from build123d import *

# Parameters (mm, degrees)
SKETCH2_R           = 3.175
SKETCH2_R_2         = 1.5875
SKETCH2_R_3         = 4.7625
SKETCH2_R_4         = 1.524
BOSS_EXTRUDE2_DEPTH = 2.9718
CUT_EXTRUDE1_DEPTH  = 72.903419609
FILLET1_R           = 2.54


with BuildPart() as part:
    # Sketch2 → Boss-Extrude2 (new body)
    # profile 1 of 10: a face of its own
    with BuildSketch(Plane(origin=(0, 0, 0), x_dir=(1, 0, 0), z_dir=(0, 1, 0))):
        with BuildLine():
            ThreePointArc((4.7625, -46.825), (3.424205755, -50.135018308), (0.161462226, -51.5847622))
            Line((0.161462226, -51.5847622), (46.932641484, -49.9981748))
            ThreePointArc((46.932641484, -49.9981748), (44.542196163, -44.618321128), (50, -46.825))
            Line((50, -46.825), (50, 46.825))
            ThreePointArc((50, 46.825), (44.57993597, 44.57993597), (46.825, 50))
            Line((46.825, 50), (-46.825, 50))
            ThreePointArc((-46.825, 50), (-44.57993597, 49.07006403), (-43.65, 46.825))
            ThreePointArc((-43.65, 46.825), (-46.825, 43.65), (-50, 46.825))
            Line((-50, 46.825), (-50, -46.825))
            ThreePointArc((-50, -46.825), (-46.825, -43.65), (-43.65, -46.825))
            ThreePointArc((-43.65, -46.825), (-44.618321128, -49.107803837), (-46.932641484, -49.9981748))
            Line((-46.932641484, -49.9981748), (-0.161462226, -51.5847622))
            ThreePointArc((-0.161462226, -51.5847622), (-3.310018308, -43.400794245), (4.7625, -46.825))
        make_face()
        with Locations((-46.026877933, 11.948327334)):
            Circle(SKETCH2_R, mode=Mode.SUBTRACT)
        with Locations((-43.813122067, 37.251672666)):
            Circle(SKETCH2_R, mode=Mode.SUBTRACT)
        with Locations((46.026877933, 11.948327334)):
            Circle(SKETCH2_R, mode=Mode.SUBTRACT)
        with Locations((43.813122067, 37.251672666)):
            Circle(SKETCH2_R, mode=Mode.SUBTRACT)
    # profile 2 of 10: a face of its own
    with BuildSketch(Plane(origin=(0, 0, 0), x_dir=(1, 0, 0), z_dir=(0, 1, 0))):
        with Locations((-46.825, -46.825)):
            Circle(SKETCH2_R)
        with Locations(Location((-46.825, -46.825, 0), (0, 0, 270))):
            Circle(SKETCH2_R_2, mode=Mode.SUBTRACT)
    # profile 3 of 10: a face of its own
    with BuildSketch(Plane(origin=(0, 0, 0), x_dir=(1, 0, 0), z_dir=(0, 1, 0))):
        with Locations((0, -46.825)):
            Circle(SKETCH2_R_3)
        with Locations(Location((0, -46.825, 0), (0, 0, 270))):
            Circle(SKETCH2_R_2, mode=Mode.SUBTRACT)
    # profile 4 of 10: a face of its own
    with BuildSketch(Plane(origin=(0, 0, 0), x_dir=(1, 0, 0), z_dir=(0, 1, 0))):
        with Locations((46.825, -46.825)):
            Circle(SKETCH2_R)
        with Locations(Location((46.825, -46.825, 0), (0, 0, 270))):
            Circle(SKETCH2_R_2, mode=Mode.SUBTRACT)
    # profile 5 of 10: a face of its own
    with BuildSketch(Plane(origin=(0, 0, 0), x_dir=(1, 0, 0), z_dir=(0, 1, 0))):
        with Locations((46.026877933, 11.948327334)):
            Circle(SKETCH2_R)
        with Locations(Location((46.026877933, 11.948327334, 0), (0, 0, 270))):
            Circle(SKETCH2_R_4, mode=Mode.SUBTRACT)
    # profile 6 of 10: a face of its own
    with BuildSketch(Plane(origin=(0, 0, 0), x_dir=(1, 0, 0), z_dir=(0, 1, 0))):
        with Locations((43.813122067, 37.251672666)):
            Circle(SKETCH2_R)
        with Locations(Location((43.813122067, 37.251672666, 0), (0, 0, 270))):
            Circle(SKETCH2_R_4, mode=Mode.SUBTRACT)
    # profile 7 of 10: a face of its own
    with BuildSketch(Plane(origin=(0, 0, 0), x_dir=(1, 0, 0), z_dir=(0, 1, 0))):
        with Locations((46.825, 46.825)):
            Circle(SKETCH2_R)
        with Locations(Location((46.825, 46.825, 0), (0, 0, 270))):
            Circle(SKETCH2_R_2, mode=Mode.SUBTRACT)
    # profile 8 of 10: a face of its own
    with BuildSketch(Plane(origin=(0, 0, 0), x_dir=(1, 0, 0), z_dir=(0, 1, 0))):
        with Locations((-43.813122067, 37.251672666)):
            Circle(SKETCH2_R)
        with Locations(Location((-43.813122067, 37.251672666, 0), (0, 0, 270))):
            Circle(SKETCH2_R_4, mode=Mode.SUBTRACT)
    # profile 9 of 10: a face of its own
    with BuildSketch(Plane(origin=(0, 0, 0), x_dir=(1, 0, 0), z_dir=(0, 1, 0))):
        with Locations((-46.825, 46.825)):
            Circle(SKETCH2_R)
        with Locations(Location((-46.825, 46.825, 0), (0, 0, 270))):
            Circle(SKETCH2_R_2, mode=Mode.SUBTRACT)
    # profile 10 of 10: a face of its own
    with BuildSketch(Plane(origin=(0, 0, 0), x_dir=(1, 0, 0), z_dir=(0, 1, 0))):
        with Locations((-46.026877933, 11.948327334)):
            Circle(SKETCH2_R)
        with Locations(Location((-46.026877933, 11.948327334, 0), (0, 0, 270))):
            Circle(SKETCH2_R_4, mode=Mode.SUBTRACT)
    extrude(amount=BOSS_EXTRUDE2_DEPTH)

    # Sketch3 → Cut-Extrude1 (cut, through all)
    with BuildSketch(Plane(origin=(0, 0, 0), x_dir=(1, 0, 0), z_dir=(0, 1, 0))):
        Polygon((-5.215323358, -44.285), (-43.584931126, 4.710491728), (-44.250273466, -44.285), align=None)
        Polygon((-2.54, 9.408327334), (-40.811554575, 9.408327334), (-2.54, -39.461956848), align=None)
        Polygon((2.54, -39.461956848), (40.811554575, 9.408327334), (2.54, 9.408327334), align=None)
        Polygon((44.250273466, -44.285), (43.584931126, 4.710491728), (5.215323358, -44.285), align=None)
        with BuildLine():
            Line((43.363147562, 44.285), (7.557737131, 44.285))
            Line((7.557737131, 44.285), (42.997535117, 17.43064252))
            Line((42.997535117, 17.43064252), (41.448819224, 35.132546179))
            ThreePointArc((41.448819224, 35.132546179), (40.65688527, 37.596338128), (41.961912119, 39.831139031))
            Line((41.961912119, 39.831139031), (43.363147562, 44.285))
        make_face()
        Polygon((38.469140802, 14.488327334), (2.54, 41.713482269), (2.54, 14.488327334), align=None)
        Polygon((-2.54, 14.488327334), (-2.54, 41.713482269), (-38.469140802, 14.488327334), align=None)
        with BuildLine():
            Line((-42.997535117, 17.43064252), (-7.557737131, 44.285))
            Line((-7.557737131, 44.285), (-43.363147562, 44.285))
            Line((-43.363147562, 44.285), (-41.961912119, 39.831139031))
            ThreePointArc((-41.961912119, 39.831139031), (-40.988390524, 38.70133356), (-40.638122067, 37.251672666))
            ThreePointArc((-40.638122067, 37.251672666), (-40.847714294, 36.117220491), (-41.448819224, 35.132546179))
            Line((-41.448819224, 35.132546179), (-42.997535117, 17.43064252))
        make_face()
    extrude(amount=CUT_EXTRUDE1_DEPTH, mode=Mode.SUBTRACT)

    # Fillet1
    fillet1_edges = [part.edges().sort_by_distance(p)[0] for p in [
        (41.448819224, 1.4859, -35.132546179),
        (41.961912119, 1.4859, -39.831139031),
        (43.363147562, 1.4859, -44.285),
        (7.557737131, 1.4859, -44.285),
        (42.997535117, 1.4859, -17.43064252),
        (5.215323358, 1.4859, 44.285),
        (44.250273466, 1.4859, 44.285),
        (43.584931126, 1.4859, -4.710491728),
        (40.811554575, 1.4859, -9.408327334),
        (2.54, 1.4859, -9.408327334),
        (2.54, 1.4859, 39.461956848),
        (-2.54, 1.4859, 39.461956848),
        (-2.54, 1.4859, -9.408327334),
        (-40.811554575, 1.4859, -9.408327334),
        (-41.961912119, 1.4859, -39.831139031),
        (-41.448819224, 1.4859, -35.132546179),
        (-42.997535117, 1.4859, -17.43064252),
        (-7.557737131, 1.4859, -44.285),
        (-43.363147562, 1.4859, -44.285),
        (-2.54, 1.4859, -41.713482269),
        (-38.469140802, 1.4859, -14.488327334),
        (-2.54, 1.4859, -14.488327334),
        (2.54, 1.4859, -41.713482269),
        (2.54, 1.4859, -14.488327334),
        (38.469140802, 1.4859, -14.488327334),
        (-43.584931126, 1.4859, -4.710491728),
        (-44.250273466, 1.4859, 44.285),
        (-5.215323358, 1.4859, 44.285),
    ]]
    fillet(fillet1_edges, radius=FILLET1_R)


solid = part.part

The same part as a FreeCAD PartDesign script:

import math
import FreeCAD as App
import Part
import Sketcher
from FreeCAD import Vector
Q = App.Units.Quantity


def edges_at(feature, points):
    """Names of the edges that pass closest to the given points."""
    edges = feature.Shape.Edges
    near = lambda p: min(range(len(edges)), key=lambda i: edges[i].distToShape(Part.Vertex(*p))[0])
    return sorted({f"Edge{near(p) + 1}" for p in points})

doc = App.newDocument("Part")
params = doc.addObject("Spreadsheet::Sheet", "Params")
for row, (alias, value) in enumerate([
    ("sketch1_diameter", "0.12 in"),
    ("sketch1_diameter2", "0.125 in"),
    ("sketch1_radius", "0.125 in"),
    ("sketch1_radius2", "0.1875 in"),
    ("pad1_length", "0.117 in"),
    ("sketch2_radius", "0.125 in"),
    ("fillet_radius", "0.1 in"),
], start=1):
    params.set(f"A{row}", alias)
    params.set(f"B{row}", "=" + value)
    params.setAlias(f"B{row}", alias)

body = doc.addObject("PartDesign::Body", "Body")

# Sketch on XZ plane
sketch1 = body.newObject("Sketcher::SketchObject", "Sketch")
sketch1.AttachmentSupport = (doc.getObject("XZ_Plane"), [""])
sketch1.MapMode = "FlatFace"
sketch1.addGeometry(Part.LineSegment(Vector(0.16, 51.58, 0), Vector(46.93, 50, 0)), False)
sketch1.addGeometry(Part.ArcOfCircle(Part.Circle(Vector(46.83, 46.83, 0), Vector(0, 0, 1), 3.17), math.radians(0), math.radians(88)), False)
sketch1.addGeometry(Part.LineSegment(Vector(50, 46.83, 0), Vector(50, -46.83, 0)), False)
sketch1.addGeometry(Part.ArcOfCircle(Part.Circle(Vector(46.83, -46.83, 0), Vector(0, 0, 1), 3.17), math.radians(-90), math.radians(0)), False)
sketch1.addGeometry(Part.LineSegment(Vector(46.83, -50, 0), Vector(-46.83, -50, 0)), False)
sketch1.addGeometry(Part.ArcOfCircle(Part.Circle(Vector(-46.83, -46.83, 0), Vector(0, 0, 1), 3.17), math.radians(180), math.radians(270)), False)
sketch1.addGeometry(Part.LineSegment(Vector(-50, -46.83, 0), Vector(-50, 46.83, 0)), False)
sketch1.addGeometry(Part.ArcOfCircle(Part.Circle(Vector(-46.83, 46.83, 0), Vector(0, 0, 1), 3.17), math.radians(92), math.radians(180)), False)
sketch1.addGeometry(Part.LineSegment(Vector(-46.93, 50, 0), Vector(-0.16, 51.58, 0)), False)
sketch1.addGeometry(Part.ArcOfCircle(Part.Circle(Vector(0, 46.83, 0), Vector(0, 0, 1), 4.76), math.radians(88.06), math.radians(91.94)), False)
sketch1.addGeometry(Part.Circle(Vector(0, 46.83, 0), Vector(0, 0, 1), 1.59), False)
sketch1.addGeometry(Part.Circle(Vector(46.83, 46.83, 0), Vector(0, 0, 1), 1.59), False)
sketch1.addGeometry(Part.Circle(Vector(-46.83, 46.83, 0), Vector(0, 0, 1), 1.59), False)
sketch1.addGeometry(Part.Circle(Vector(46.83, -46.83, 0), Vector(0, 0, 1), 1.59), False)
sketch1.addGeometry(Part.Circle(Vector(-46.83, -46.83, 0), Vector(0, 0, 1), 1.59), False)
sketch1.addGeometry(Part.Circle(Vector(-46.03, -11.95, 0), Vector(0, 0, 1), 1.52), False)
sketch1.addGeometry(Part.Circle(Vector(46.03, -11.95, 0), Vector(0, 0, 1), 1.52), False)
sketch1.addGeometry(Part.Circle(Vector(-43.81, -37.25, 0), Vector(0, 0, 1), 1.52), False)
sketch1.addGeometry(Part.Circle(Vector(43.81, -37.25, 0), Vector(0, 0, 1), 1.52), False)
sketch1.addConstraint(Sketcher.Constraint("Tangent", 0, 2, 1, 2))
sketch1.addConstraint(Sketcher.Constraint("Tangent", 1, 1, 2, 1))
sketch1.addConstraint(Sketcher.Constraint("Tangent", 2, 2, 3, 2))
sketch1.addConstraint(Sketcher.Constraint("Tangent", 3, 1, 4, 1))
sketch1.addConstraint(Sketcher.Constraint("Tangent", 4, 2, 5, 2))
sketch1.addConstraint(Sketcher.Constraint("Tangent", 5, 1, 6, 1))
sketch1.addConstraint(Sketcher.Constraint("Tangent", 6, 2, 7, 2))
sketch1.addConstraint(Sketcher.Constraint("Tangent", 7, 1, 8, 1))
sketch1.addConstraint(Sketcher.Constraint("Tangent", 8, 2, 9, 2))
sketch1.addConstraint(Sketcher.Constraint("Tangent", 9, 1, 0, 1))
sketch1.addConstraint(Sketcher.Constraint("Vertical", 2))
sketch1.addConstraint(Sketcher.Constraint("Horizontal", 4))
sketch1.addConstraint(Sketcher.Constraint("Vertical", 6))
sketch1.addConstraint(Sketcher.Constraint("Coincident", 10, 3, 9, 3))
sketch1.addConstraint(Sketcher.Constraint("Coincident", 11, 3, 1, 3))
sketch1.addConstraint(Sketcher.Constraint("Coincident", 12, 3, 7, 3))
sketch1.addConstraint(Sketcher.Constraint("Coincident", 13, 3, 3, 3))
sketch1.addConstraint(Sketcher.Constraint("Coincident", 14, 3, 5, 3))
sketch1.addConstraint(Sketcher.Constraint("Equal", 1, 3))
sketch1.addConstraint(Sketcher.Constraint("Equal", 3, 5))
sketch1.addConstraint(Sketcher.Constraint("Equal", 5, 7))
sketch1.addConstraint(Sketcher.Constraint("Equal", 10, 11))
sketch1.addConstraint(Sketcher.Constraint("Equal", 11, 12))
sketch1.addConstraint(Sketcher.Constraint("Equal", 12, 13))
sketch1.addConstraint(Sketcher.Constraint("Equal", 13, 14))
sketch1.addConstraint(Sketcher.Constraint("Equal", 15, 16))
sketch1.addConstraint(Sketcher.Constraint("Equal", 16, 17))
sketch1.addConstraint(Sketcher.Constraint("Equal", 17, 18))
sketch1.addConstraint(Sketcher.Constraint("Symmetric", 1, 3, 5, 3, -1, 1))
sketch1.addConstraint(Sketcher.Constraint("Symmetric", 15, 3, 16, 3, -2))
sketch1.addConstraint(Sketcher.Constraint("Symmetric", 17, 3, 18, 3, -2))
sketch1.addConstraint(Sketcher.Constraint("Symmetric", 0, 2, 7, 1, -2))
sketch1.addConstraint(Sketcher.Constraint("Horizontal", 7, 3, 9, 3))
sketch1.addConstraint(Sketcher.Constraint("Equal", 4, 2))
sketch1.addConstraint(Sketcher.Constraint("Diameter", 15, Q("0.12 in")))
sketch1.addConstraint(Sketcher.Constraint("Diameter", 10, Q("0.125 in")))
sketch1.addConstraint(Sketcher.Constraint("Radius", 1, Q("0.125 in")))
sketch1.addConstraint(Sketcher.Constraint("Radius", 9, Q("0.1875 in")))
sketch1.addConstraint(Sketcher.Constraint("DistanceX", 4, 2, 4, 1, 93.65))
sketch1.addConstraint(Sketcher.Constraint("DistanceX", 15, 3, -1, 1, 46.026878))
sketch1.addConstraint(Sketcher.Constraint("DistanceY", 15, 3, -1, 1, 11.948327))
sketch1.addConstraint(Sketcher.Constraint("DistanceX", 17, 3, -1, 1, 43.813122))
sketch1.addConstraint(Sketcher.Constraint("DistanceY", 17, 3, -1, 1, 37.251673))
sketch1.setExpression("Constraints[34]", "Params.sketch1_diameter")
sketch1.setExpression("Constraints[35]", "Params.sketch1_diameter2")
sketch1.setExpression("Constraints[36]", "Params.sketch1_radius")
sketch1.setExpression("Constraints[37]", "Params.sketch1_radius2")
pad1 = body.newObject("PartDesign::Pad", "Pad")
pad1.Profile = sketch1
pad1.setExpression("Length", "Params.pad1_length")
pad1.Reversed = True

# Sketch on XZ plane
sketch2 = body.newObject("Sketcher::SketchObject", "Sketch001")
sketch2.AttachmentSupport = (doc.getObject("XZ_Plane"), [""])
sketch2.MapMode = "FlatFace"
sketch2.addGeometry(Part.LineSegment(Vector(-5.2, 44.3, 0), Vector(-43.6, -4.7, 0)), False)
sketch2.addGeometry(Part.LineSegment(Vector(-43.6, -4.7, 0), Vector(-44.3, 44.3, 0)), False)
sketch2.addGeometry(Part.LineSegment(Vector(-44.3, 44.3, 0), Vector(-5.2, 44.3, 0)), False)
sketch2.addGeometry(Part.LineSegment(Vector(-2.5, -9.4, 0), Vector(-40.8, -9.4, 0)), False)
sketch2.addGeometry(Part.LineSegment(Vector(-40.8, -9.4, 0), Vector(-2.5, 39.5, 0)), False)
sketch2.addGeometry(Part.LineSegment(Vector(-2.5, 39.5, 0), Vector(-2.5, -9.4, 0)), False)
sketch2.addGeometry(Part.LineSegment(Vector(2.5, 39.5, 0), Vector(40.8, -9.4, 0)), False)
sketch2.addGeometry(Part.LineSegment(Vector(40.8, -9.4, 0), Vector(2.5, -9.4, 0)), False)
sketch2.addGeometry(Part.LineSegment(Vector(2.5, -9.4, 0), Vector(2.5, 39.5, 0)), False)
sketch2.addGeometry(Part.LineSegment(Vector(44.3, 44.3, 0), Vector(43.6, -4.7, 0)), False)
sketch2.addGeometry(Part.LineSegment(Vector(43.6, -4.7, 0), Vector(5.2, 44.3, 0)), False)
sketch2.addGeometry(Part.LineSegment(Vector(5.2, 44.3, 0), Vector(44.3, 44.3, 0)), False)
sketch2.addGeometry(Part.LineSegment(Vector(43.4, -44.3, 0), Vector(7.6, -44.3, 0)), False)
sketch2.addGeometry(Part.LineSegment(Vector(7.6, -44.3, 0), Vector(43, -17.4, 0)), False)
sketch2.addGeometry(Part.LineSegment(Vector(43, -17.4, 0), Vector(41.4, -35.1, 0)), False)
sketch2.addGeometry(Part.ArcOfCircle(Part.Circle(Vector(43.8, -37.3, 0), Vector(0, 0, 1), 3.2), math.radians(138), math.radians(234)), False)
sketch2.addGeometry(Part.LineSegment(Vector(42, -39.8, 0), Vector(43.4, -44.3, 0)), False)
sketch2.addGeometry(Part.LineSegment(Vector(38.5, -14.5, 0), Vector(2.5, -41.7, 0)), False)
sketch2.addGeometry(Part.LineSegment(Vector(2.5, -41.7, 0), Vector(2.5, -14.5, 0)), False)
sketch2.addGeometry(Part.LineSegment(Vector(2.5, -14.5, 0), Vector(38.5, -14.5, 0)), False)
sketch2.addGeometry(Part.LineSegment(Vector(-2.5, -14.5, 0), Vector(-2.5, -41.7, 0)), False)
sketch2.addGeometry(Part.LineSegment(Vector(-2.5, -41.7, 0), Vector(-38.5, -14.5, 0)), False)
sketch2.addGeometry(Part.LineSegment(Vector(-38.5, -14.5, 0), Vector(-2.5, -14.5, 0)), False)
sketch2.addGeometry(Part.LineSegment(Vector(-43, -17.4, 0), Vector(-7.6, -44.3, 0)), False)
sketch2.addGeometry(Part.LineSegment(Vector(-7.6, -44.3, 0), Vector(-43.4, -44.3, 0)), False)
sketch2.addGeometry(Part.LineSegment(Vector(-43.4, -44.3, 0), Vector(-42, -39.8, 0)), False)
sketch2.addGeometry(Part.ArcOfCircle(Part.Circle(Vector(-43.8, -37.3, 0), Vector(0, 0, 1), 3.2), math.radians(-54), math.radians(0)), False)
sketch2.addGeometry(Part.ArcOfCircle(Part.Circle(Vector(-43.8, -37.3, 0), Vector(0, 0, 1), 3.2), math.radians(0), math.radians(42)), False)
sketch2.addGeometry(Part.LineSegment(Vector(-41.4, -35.1, 0), Vector(-43, -17.4, 0)), False)
sketch2.addConstraint(Sketcher.Constraint("Coincident", 0, 2, 1, 1))
sketch2.addConstraint(Sketcher.Constraint("Coincident", 1, 2, 2, 1))
sketch2.addConstraint(Sketcher.Constraint("Coincident", 2, 2, 0, 1))
sketch2.addConstraint(Sketcher.Constraint("Coincident", 3, 2, 4, 1))
sketch2.addConstraint(Sketcher.Constraint("Coincident", 4, 2, 5, 1))
sketch2.addConstraint(Sketcher.Constraint("Coincident", 5, 2, 3, 1))
sketch2.addConstraint(Sketcher.Constraint("Coincident", 6, 2, 7, 1))
sketch2.addConstraint(Sketcher.Constraint("Coincident", 7, 2, 8, 1))
sketch2.addConstraint(Sketcher.Constraint("Coincident", 8, 2, 6, 1))
sketch2.addConstraint(Sketcher.Constraint("Coincident", 9, 2, 10, 1))
sketch2.addConstraint(Sketcher.Constraint("Coincident", 10, 2, 11, 1))
sketch2.addConstraint(Sketcher.Constraint("Coincident", 11, 2, 9, 1))
sketch2.addConstraint(Sketcher.Constraint("Coincident", 12, 2, 13, 1))
sketch2.addConstraint(Sketcher.Constraint("Coincident", 13, 2, 14, 1))
sketch2.addConstraint(Sketcher.Constraint("Coincident", 14, 2, 15, 1))
sketch2.addConstraint(Sketcher.Constraint("Coincident", 15, 2, 16, 1))
sketch2.addConstraint(Sketcher.Constraint("Coincident", 16, 2, 12, 1))
sketch2.addConstraint(Sketcher.Constraint("Coincident", 17, 2, 18, 1))
sketch2.addConstraint(Sketcher.Constraint("Coincident", 18, 2, 19, 1))
sketch2.addConstraint(Sketcher.Constraint("Coincident", 19, 2, 17, 1))
sketch2.addConstraint(Sketcher.Constraint("Coincident", 20, 2, 21, 1))
sketch2.addConstraint(Sketcher.Constraint("Coincident", 21, 2, 22, 1))
sketch2.addConstraint(Sketcher.Constraint("Coincident", 22, 2, 20, 1))
sketch2.addConstraint(Sketcher.Constraint("Coincident", 23, 2, 24, 1))
sketch2.addConstraint(Sketcher.Constraint("Coincident", 24, 2, 25, 1))
sketch2.addConstraint(Sketcher.Constraint("Coincident", 25, 2, 26, 1))
sketch2.addConstraint(Sketcher.Constraint("Tangent", 26, 2, 27, 1))
sketch2.addConstraint(Sketcher.Constraint("Coincident", 27, 2, 28, 1))
sketch2.addConstraint(Sketcher.Constraint("Coincident", 28, 2, 23, 1))
sketch2.addConstraint(Sketcher.Constraint("Horizontal", 2))
sketch2.addConstraint(Sketcher.Constraint("Horizontal", 3))
sketch2.addConstraint(Sketcher.Constraint("Vertical", 5))
sketch2.addConstraint(Sketcher.Constraint("Horizontal", 7))
sketch2.addConstraint(Sketcher.Constraint("Vertical", 8))
sketch2.addConstraint(Sketcher.Constraint("Horizontal", 11))
sketch2.addConstraint(Sketcher.Constraint("Horizontal", 12))
sketch2.addConstraint(Sketcher.Constraint("Vertical", 18))
sketch2.addConstraint(Sketcher.Constraint("Horizontal", 19))
sketch2.addConstraint(Sketcher.Constraint("Vertical", 20))
sketch2.addConstraint(Sketcher.Constraint("Horizontal", 22))
sketch2.addConstraint(Sketcher.Constraint("Horizontal", 24))
sketch2.addConstraint(Sketcher.Constraint("Equal", 15, 26))
sketch2.addConstraint(Sketcher.Constraint("Equal", 26, 27))
sketch2.addConstraint(Sketcher.Constraint("Symmetric", 15, 3, 26, 3, -2))
sketch2.addConstraint(Sketcher.Constraint("Symmetric", 3, 2, 6, 2, -2))
sketch2.addConstraint(Sketcher.Constraint("Symmetric", 4, 2, 8, 2, -2))
sketch2.addConstraint(Sketcher.Constraint("Symmetric", 0, 2, 9, 2, -2))
sketch2.addConstraint(Sketcher.Constraint("Symmetric", 2, 2, 10, 2, -2))
sketch2.addConstraint(Sketcher.Constraint("Symmetric", 17, 2, 20, 2, -2))
sketch2.addConstraint(Sketcher.Constraint("Symmetric", 19, 2, 21, 2, -2))
sketch2.addConstraint(Sketcher.Constraint("Symmetric", 12, 2, 23, 2, -2))
sketch2.addConstraint(Sketcher.Constraint("Symmetric", 13, 2, 28, 2, -2))
sketch2.addConstraint(Sketcher.Constraint("Parallel", 0, 4))
sketch2.addConstraint(Sketcher.Constraint("Parallel", 13, 17))
sketch2.addConstraint(Sketcher.Constraint("Horizontal", 15, 2, 25, 2))
sketch2.addConstraint(Sketcher.Constraint("Horizontal", 27, 3, 26, 2))
sketch2.addConstraint(Sketcher.Constraint("Horizontal", 14, 2, 27, 2))
sketch2.addConstraint(Sketcher.Constraint("Vertical", 8, 2, 17, 2))
sketch2.addConstraint(Sketcher.Constraint("Equal", 2, 11))
sketch2.addConstraint(Sketcher.Constraint("Equal", 12, 24))
sketch2.addConstraint(Sketcher.Constraint("Angle", 14, Q("-95 deg")))
sketch2.addConstraint(Sketcher.Constraint("Radius", 15, Q("0.125 in")))
sketch2.addConstraint(Sketcher.Constraint("DistanceX", 4, 2, -1, 1, Q("0.1 in")))
sketch2.addConstraint(Sketcher.Constraint("DistanceY", 18, 2, 7, 2, Q("0.2 in")))
sketch2.addConstraint(Sketcher.Constraint("DistanceX", 2, 1, 2, 2, 39.03495))
sketch2.addConstraint(Sketcher.Constraint("DistanceX", 12, 2, 12, 1, 35.80541))
sketch2.addConstraint(Sketcher.Constraint("DistanceX", 19, 1, 19, 2, 35.929141))
sketch2.addConstraint(Sketcher.Constraint("DistanceY", -1, 1, 1, 2, 44.285))
sketch2.addConstraint(Sketcher.Constraint("DistanceY", 12, 2, -1, 1, 44.285))
sketch2.addConstraint(Sketcher.Constraint("DistanceX", 26, 3, 2, 2, 38.597799))
sketch2.addConstraint(Sketcher.Constraint("Distance", 1, 49.000009))
sketch2.addConstraint(Sketcher.Constraint("Distance", 4, 62.072672))
sketch2.addConstraint(Sketcher.Constraint("DistanceX", 3, 2, 3, 1, 38.271555))
sketch2.addConstraint(Sketcher.Constraint("DistanceY", 18, 1, 18, 2, 27.225155))
sketch2.addConstraint(Sketcher.Constraint("DistanceX", 0, 2, -1, 1, 43.584931))
sketch2.addConstraint(Sketcher.Constraint("DistanceX", -1, 1, 14, 2, 41.448819))
sketch2.addConstraint(Sketcher.Constraint("DistanceY", 15, 2, -1, 1, 39.831139))
sketch2.addConstraint(Sketcher.Constraint("DistanceY", 26, 3, 0, 2, 32.541181))
sketch2.addConstraint(Sketcher.Constraint("DistanceY", 0, 2, 4, 2, 44.172449))
sketch2.addConstraint(Sketcher.Constraint("DistanceX", 26, 3, 12, 2, 51.370859))
sketch2.setExpression("Constraints[61]", "Params.sketch2_radius")
pocket1 = body.newObject("PartDesign::Pocket", "Pocket")
pocket1.Profile = sketch2
pocket1.Type = "ThroughAll"
doc.recompute()

fillet = body.newObject("PartDesign::Fillet", "Fillet")
fillet.Base = (pocket1, edges_at(pocket1, [
    (41.449, 1.486, -35.133),
    (41.962, 1.486, -39.831),
    (43.363, 1.486, -44.285),
    (7.558, 1.486, -44.285),
    (42.998, 1.486, -17.431),
    (5.215, 1.486, 44.285),
    (44.25, 1.486, 44.285),
    (43.585, 1.486, -4.71),
    (40.812, 1.486, -9.408),
    (2.54, 1.486, -9.408),
    (2.54, 1.486, 39.462),
    (-2.54, 1.486, 39.462),
    (-2.54, 1.486, -9.408),
    (-40.812, 1.486, -9.408),
    (-41.962, 1.486, -39.831),
    (-41.449, 1.486, -35.133),
    (-42.998, 1.486, -17.431),
    (-7.558, 1.486, -44.285),
    (-43.363, 1.486, -44.285),
    (-2.54, 1.486, -41.713),
    (-38.469, 1.486, -14.488),
    (-2.54, 1.486, -14.488),
    (2.54, 1.486, -41.713),
    (2.54, 1.486, -14.488),
    (38.469, 1.486, -14.488),
    (-43.585, 1.486, -4.71),
    (-44.25, 1.486, 44.285),
    (-5.215, 1.486, 44.285),
]))
fillet.setExpression("Radius", "Params.fillet_radius")

doc.recompute()
